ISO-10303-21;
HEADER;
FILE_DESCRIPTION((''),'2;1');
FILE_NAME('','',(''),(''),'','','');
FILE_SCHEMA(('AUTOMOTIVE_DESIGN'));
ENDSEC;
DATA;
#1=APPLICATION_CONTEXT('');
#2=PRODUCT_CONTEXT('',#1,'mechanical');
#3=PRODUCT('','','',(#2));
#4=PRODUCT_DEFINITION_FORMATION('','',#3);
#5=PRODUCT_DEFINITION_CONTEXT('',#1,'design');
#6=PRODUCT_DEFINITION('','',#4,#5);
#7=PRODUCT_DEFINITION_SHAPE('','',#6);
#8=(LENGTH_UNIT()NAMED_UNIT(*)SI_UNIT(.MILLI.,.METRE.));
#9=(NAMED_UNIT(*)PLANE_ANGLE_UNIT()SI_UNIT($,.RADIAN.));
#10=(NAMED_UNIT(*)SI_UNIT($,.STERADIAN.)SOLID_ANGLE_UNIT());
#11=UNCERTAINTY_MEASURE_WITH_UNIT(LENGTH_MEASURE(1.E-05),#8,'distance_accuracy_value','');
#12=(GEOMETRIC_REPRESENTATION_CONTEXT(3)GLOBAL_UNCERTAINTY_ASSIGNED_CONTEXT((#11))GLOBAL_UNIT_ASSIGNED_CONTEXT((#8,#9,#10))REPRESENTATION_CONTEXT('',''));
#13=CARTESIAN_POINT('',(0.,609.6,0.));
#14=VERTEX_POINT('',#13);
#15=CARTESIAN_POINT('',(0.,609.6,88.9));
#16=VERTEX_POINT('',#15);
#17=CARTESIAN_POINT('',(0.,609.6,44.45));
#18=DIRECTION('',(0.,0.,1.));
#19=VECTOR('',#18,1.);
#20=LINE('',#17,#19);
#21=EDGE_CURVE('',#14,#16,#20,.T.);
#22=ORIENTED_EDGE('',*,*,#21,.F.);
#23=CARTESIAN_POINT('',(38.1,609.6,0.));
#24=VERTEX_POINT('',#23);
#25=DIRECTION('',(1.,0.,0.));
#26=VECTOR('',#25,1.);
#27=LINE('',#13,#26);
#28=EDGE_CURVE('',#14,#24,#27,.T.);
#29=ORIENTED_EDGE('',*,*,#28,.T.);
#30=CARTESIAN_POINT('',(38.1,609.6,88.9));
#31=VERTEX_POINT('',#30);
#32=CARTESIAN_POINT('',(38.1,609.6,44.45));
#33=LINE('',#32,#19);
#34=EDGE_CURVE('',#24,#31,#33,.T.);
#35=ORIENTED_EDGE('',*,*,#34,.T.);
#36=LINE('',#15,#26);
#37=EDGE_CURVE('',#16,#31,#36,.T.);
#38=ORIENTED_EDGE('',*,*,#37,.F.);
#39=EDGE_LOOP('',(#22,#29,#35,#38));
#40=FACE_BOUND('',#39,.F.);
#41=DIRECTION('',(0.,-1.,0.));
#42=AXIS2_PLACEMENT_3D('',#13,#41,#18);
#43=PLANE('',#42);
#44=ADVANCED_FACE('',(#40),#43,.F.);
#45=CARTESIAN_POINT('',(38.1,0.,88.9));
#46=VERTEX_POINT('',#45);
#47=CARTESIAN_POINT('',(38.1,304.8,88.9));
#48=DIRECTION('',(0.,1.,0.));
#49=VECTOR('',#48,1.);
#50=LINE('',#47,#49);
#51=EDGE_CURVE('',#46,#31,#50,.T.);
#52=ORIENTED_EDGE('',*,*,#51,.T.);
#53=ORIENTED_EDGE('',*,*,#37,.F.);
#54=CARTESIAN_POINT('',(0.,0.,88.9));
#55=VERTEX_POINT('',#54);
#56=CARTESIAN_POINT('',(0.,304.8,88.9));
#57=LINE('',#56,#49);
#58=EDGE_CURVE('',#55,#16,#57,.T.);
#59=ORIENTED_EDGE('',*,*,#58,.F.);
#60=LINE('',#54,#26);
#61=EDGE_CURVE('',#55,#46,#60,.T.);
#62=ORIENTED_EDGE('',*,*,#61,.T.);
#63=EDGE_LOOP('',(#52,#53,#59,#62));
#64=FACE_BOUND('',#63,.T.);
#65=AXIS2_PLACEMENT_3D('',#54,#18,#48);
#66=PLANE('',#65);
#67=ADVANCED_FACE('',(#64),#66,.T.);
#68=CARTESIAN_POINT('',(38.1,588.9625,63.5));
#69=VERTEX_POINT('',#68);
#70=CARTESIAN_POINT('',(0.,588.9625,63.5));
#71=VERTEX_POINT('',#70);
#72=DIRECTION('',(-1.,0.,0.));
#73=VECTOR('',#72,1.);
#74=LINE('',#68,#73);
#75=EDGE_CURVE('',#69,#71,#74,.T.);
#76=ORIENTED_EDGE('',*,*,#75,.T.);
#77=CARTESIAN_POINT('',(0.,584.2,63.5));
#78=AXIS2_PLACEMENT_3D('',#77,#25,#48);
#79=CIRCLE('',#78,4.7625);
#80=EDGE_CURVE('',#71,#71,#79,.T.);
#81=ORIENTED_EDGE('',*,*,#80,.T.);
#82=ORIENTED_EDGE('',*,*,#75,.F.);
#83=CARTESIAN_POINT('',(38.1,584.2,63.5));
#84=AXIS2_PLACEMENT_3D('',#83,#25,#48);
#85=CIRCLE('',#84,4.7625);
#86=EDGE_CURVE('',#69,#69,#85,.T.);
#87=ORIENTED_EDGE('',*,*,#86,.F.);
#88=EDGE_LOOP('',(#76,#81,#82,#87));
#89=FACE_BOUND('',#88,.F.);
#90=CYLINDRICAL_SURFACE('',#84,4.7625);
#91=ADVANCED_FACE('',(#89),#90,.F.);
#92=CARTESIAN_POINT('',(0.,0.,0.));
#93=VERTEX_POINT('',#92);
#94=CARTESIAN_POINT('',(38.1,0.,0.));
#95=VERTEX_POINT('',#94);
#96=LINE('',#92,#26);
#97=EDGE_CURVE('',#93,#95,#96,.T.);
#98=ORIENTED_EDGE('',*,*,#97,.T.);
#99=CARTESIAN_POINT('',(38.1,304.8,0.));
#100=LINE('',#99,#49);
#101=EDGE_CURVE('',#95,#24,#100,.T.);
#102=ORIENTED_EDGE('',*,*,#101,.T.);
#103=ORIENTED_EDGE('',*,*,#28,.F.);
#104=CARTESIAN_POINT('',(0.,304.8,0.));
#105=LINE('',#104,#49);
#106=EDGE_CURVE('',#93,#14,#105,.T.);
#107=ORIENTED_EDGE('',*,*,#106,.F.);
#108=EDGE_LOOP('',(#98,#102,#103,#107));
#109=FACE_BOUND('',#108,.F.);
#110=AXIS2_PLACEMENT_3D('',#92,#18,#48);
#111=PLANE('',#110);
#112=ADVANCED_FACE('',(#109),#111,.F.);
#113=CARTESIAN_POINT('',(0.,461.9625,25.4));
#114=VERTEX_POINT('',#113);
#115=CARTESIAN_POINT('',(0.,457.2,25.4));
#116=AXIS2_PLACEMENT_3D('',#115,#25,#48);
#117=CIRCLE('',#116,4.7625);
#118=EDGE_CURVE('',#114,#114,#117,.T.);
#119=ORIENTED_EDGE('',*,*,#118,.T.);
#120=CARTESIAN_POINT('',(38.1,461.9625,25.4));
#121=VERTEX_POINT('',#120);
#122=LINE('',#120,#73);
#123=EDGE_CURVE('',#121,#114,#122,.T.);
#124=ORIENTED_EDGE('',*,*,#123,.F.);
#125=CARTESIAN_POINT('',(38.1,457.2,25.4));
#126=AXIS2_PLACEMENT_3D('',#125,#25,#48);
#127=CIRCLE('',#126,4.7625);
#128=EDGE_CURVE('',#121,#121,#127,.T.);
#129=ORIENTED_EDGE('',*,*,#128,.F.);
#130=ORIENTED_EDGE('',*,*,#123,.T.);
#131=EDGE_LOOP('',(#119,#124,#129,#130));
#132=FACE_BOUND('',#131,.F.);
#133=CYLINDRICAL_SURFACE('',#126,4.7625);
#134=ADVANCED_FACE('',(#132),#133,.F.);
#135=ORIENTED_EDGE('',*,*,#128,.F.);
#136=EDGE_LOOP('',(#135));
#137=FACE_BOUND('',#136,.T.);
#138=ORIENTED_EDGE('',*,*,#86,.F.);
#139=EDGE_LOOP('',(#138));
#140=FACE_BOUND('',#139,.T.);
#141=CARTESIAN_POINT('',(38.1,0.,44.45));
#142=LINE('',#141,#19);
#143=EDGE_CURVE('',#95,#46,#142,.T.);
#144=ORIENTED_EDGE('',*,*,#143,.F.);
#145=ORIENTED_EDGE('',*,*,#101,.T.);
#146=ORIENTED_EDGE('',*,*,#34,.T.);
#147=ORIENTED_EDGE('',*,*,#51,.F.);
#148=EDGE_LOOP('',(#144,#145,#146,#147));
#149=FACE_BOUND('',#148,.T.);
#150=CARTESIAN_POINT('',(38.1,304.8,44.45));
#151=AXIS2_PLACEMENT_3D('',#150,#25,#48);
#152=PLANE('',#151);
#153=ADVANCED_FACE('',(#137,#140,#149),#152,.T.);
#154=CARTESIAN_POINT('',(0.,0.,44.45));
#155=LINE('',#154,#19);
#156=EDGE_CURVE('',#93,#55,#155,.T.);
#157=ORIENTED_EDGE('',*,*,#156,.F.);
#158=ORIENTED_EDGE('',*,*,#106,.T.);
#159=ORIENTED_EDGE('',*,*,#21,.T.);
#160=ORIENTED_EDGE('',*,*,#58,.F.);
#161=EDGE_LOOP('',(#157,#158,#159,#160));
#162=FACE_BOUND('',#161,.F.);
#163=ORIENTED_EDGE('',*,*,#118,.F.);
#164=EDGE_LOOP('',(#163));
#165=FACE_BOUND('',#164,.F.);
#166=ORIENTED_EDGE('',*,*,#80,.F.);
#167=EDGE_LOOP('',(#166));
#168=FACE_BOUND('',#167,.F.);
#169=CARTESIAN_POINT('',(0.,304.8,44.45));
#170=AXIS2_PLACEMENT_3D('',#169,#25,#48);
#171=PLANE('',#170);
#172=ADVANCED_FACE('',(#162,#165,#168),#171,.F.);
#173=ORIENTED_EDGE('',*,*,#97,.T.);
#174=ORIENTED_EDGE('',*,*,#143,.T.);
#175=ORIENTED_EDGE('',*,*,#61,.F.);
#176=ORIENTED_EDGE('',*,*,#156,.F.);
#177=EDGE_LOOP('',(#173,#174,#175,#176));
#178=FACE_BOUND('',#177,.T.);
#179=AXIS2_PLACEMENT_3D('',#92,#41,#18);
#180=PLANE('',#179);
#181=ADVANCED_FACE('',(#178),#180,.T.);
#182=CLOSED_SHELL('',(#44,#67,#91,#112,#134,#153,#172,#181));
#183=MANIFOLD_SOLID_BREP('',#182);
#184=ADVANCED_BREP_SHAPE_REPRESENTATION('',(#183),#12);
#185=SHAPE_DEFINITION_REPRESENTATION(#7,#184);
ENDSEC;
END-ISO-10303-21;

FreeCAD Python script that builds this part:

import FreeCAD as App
import Part
import Sketcher

V = App.Vector
Q = App.Units.Quantity


def add_polygon(sketch, points):
    """Adds a closed chain of lines whose ends are joined by coincident constraints."""
    first, n = sketch.GeometryCount, len(points)
    for a, b in zip(points, points[1:] + points[:1]):
        sketch.addGeometry(Part.LineSegment(App.Vector(*a, 0), App.Vector(*b, 0)), False)
    for i in range(n):
        sketch.addConstraint(Sketcher.Constraint("Coincident", first + i, 2, first + (i + 1) % n, 1))

doc = App.newDocument("Part")
body = doc.addObject("PartDesign::Body", "Body")

# Sketch on YZ plane
sketch1 = body.newObject("Sketcher::SketchObject", "Sketch")
sketch1.AttachmentSupport = (doc.getObject("YZ_Plane"), [""])
sketch1.MapMode = "FlatFace"
add_polygon(sketch1, [(0, 89), (0, 0), (610, 0), (610, 89)])  # lines 0-3
sketch1.addConstraint([
    Sketcher.Constraint("Vertical", 0),
    Sketcher.Constraint("Horizontal", 1),
    Sketcher.Constraint("Vertical", 2),
    Sketcher.Constraint("Horizontal", 3),
    Sketcher.Constraint("Coincident", 0, 2, -1, 1),
    Sketcher.Constraint("DistanceX", 1, 1, 1, 2, Q("24 in")),
    Sketcher.Constraint("DistanceY", 0, 2, 0, 1, Q("3.5 in")),
])
pad1 = body.newObject("PartDesign::Pad", "Pad")
pad1.Profile = sketch1
pad1.Length = Q("1.5 in")

# Sketch on YZ plane
sketch2 = body.newObject("Sketcher::SketchObject", "Sketch001")
sketch2.AttachmentSupport = (doc.getObject("YZ_Plane"), [""])
sketch2.MapMode = "FlatFace"
sketch2.AttachmentOffset = App.Placement(V(0, 0, 1.5 * 25.4), App.Rotation())
sketch2.addGeometry([
    Part.Circle(V(457.2, 25.4, 0), V(0, 0, 1), 4.8),
    Part.Circle(V(584.2, 63.5, 0), V(0, 0, 1), 4.8),
], False)
sketch2.addConstraint([
    Sketcher.Constraint("Equal", 0, 1),
    Sketcher.Constraint("Diameter", 0, Q("0.375 in")),
    Sketcher.Constraint("DistanceX", -1, 1, 0, 3, Q("18 in")),
    Sketcher.Constraint("DistanceY", -1, 1, 0, 3, Q("1 in")),
    Sketcher.Constraint("DistanceX", -1, 1, 1, 3, Q("23 in")),
    Sketcher.Constraint("DistanceY", -1, 1, 1, 3, Q("2.5 in")),
])
pocket1 = body.newObject("PartDesign::Pocket", "Pocket")
pocket1.Profile = sketch2
pocket1.Type = "ThroughAll"

doc.recompute()
